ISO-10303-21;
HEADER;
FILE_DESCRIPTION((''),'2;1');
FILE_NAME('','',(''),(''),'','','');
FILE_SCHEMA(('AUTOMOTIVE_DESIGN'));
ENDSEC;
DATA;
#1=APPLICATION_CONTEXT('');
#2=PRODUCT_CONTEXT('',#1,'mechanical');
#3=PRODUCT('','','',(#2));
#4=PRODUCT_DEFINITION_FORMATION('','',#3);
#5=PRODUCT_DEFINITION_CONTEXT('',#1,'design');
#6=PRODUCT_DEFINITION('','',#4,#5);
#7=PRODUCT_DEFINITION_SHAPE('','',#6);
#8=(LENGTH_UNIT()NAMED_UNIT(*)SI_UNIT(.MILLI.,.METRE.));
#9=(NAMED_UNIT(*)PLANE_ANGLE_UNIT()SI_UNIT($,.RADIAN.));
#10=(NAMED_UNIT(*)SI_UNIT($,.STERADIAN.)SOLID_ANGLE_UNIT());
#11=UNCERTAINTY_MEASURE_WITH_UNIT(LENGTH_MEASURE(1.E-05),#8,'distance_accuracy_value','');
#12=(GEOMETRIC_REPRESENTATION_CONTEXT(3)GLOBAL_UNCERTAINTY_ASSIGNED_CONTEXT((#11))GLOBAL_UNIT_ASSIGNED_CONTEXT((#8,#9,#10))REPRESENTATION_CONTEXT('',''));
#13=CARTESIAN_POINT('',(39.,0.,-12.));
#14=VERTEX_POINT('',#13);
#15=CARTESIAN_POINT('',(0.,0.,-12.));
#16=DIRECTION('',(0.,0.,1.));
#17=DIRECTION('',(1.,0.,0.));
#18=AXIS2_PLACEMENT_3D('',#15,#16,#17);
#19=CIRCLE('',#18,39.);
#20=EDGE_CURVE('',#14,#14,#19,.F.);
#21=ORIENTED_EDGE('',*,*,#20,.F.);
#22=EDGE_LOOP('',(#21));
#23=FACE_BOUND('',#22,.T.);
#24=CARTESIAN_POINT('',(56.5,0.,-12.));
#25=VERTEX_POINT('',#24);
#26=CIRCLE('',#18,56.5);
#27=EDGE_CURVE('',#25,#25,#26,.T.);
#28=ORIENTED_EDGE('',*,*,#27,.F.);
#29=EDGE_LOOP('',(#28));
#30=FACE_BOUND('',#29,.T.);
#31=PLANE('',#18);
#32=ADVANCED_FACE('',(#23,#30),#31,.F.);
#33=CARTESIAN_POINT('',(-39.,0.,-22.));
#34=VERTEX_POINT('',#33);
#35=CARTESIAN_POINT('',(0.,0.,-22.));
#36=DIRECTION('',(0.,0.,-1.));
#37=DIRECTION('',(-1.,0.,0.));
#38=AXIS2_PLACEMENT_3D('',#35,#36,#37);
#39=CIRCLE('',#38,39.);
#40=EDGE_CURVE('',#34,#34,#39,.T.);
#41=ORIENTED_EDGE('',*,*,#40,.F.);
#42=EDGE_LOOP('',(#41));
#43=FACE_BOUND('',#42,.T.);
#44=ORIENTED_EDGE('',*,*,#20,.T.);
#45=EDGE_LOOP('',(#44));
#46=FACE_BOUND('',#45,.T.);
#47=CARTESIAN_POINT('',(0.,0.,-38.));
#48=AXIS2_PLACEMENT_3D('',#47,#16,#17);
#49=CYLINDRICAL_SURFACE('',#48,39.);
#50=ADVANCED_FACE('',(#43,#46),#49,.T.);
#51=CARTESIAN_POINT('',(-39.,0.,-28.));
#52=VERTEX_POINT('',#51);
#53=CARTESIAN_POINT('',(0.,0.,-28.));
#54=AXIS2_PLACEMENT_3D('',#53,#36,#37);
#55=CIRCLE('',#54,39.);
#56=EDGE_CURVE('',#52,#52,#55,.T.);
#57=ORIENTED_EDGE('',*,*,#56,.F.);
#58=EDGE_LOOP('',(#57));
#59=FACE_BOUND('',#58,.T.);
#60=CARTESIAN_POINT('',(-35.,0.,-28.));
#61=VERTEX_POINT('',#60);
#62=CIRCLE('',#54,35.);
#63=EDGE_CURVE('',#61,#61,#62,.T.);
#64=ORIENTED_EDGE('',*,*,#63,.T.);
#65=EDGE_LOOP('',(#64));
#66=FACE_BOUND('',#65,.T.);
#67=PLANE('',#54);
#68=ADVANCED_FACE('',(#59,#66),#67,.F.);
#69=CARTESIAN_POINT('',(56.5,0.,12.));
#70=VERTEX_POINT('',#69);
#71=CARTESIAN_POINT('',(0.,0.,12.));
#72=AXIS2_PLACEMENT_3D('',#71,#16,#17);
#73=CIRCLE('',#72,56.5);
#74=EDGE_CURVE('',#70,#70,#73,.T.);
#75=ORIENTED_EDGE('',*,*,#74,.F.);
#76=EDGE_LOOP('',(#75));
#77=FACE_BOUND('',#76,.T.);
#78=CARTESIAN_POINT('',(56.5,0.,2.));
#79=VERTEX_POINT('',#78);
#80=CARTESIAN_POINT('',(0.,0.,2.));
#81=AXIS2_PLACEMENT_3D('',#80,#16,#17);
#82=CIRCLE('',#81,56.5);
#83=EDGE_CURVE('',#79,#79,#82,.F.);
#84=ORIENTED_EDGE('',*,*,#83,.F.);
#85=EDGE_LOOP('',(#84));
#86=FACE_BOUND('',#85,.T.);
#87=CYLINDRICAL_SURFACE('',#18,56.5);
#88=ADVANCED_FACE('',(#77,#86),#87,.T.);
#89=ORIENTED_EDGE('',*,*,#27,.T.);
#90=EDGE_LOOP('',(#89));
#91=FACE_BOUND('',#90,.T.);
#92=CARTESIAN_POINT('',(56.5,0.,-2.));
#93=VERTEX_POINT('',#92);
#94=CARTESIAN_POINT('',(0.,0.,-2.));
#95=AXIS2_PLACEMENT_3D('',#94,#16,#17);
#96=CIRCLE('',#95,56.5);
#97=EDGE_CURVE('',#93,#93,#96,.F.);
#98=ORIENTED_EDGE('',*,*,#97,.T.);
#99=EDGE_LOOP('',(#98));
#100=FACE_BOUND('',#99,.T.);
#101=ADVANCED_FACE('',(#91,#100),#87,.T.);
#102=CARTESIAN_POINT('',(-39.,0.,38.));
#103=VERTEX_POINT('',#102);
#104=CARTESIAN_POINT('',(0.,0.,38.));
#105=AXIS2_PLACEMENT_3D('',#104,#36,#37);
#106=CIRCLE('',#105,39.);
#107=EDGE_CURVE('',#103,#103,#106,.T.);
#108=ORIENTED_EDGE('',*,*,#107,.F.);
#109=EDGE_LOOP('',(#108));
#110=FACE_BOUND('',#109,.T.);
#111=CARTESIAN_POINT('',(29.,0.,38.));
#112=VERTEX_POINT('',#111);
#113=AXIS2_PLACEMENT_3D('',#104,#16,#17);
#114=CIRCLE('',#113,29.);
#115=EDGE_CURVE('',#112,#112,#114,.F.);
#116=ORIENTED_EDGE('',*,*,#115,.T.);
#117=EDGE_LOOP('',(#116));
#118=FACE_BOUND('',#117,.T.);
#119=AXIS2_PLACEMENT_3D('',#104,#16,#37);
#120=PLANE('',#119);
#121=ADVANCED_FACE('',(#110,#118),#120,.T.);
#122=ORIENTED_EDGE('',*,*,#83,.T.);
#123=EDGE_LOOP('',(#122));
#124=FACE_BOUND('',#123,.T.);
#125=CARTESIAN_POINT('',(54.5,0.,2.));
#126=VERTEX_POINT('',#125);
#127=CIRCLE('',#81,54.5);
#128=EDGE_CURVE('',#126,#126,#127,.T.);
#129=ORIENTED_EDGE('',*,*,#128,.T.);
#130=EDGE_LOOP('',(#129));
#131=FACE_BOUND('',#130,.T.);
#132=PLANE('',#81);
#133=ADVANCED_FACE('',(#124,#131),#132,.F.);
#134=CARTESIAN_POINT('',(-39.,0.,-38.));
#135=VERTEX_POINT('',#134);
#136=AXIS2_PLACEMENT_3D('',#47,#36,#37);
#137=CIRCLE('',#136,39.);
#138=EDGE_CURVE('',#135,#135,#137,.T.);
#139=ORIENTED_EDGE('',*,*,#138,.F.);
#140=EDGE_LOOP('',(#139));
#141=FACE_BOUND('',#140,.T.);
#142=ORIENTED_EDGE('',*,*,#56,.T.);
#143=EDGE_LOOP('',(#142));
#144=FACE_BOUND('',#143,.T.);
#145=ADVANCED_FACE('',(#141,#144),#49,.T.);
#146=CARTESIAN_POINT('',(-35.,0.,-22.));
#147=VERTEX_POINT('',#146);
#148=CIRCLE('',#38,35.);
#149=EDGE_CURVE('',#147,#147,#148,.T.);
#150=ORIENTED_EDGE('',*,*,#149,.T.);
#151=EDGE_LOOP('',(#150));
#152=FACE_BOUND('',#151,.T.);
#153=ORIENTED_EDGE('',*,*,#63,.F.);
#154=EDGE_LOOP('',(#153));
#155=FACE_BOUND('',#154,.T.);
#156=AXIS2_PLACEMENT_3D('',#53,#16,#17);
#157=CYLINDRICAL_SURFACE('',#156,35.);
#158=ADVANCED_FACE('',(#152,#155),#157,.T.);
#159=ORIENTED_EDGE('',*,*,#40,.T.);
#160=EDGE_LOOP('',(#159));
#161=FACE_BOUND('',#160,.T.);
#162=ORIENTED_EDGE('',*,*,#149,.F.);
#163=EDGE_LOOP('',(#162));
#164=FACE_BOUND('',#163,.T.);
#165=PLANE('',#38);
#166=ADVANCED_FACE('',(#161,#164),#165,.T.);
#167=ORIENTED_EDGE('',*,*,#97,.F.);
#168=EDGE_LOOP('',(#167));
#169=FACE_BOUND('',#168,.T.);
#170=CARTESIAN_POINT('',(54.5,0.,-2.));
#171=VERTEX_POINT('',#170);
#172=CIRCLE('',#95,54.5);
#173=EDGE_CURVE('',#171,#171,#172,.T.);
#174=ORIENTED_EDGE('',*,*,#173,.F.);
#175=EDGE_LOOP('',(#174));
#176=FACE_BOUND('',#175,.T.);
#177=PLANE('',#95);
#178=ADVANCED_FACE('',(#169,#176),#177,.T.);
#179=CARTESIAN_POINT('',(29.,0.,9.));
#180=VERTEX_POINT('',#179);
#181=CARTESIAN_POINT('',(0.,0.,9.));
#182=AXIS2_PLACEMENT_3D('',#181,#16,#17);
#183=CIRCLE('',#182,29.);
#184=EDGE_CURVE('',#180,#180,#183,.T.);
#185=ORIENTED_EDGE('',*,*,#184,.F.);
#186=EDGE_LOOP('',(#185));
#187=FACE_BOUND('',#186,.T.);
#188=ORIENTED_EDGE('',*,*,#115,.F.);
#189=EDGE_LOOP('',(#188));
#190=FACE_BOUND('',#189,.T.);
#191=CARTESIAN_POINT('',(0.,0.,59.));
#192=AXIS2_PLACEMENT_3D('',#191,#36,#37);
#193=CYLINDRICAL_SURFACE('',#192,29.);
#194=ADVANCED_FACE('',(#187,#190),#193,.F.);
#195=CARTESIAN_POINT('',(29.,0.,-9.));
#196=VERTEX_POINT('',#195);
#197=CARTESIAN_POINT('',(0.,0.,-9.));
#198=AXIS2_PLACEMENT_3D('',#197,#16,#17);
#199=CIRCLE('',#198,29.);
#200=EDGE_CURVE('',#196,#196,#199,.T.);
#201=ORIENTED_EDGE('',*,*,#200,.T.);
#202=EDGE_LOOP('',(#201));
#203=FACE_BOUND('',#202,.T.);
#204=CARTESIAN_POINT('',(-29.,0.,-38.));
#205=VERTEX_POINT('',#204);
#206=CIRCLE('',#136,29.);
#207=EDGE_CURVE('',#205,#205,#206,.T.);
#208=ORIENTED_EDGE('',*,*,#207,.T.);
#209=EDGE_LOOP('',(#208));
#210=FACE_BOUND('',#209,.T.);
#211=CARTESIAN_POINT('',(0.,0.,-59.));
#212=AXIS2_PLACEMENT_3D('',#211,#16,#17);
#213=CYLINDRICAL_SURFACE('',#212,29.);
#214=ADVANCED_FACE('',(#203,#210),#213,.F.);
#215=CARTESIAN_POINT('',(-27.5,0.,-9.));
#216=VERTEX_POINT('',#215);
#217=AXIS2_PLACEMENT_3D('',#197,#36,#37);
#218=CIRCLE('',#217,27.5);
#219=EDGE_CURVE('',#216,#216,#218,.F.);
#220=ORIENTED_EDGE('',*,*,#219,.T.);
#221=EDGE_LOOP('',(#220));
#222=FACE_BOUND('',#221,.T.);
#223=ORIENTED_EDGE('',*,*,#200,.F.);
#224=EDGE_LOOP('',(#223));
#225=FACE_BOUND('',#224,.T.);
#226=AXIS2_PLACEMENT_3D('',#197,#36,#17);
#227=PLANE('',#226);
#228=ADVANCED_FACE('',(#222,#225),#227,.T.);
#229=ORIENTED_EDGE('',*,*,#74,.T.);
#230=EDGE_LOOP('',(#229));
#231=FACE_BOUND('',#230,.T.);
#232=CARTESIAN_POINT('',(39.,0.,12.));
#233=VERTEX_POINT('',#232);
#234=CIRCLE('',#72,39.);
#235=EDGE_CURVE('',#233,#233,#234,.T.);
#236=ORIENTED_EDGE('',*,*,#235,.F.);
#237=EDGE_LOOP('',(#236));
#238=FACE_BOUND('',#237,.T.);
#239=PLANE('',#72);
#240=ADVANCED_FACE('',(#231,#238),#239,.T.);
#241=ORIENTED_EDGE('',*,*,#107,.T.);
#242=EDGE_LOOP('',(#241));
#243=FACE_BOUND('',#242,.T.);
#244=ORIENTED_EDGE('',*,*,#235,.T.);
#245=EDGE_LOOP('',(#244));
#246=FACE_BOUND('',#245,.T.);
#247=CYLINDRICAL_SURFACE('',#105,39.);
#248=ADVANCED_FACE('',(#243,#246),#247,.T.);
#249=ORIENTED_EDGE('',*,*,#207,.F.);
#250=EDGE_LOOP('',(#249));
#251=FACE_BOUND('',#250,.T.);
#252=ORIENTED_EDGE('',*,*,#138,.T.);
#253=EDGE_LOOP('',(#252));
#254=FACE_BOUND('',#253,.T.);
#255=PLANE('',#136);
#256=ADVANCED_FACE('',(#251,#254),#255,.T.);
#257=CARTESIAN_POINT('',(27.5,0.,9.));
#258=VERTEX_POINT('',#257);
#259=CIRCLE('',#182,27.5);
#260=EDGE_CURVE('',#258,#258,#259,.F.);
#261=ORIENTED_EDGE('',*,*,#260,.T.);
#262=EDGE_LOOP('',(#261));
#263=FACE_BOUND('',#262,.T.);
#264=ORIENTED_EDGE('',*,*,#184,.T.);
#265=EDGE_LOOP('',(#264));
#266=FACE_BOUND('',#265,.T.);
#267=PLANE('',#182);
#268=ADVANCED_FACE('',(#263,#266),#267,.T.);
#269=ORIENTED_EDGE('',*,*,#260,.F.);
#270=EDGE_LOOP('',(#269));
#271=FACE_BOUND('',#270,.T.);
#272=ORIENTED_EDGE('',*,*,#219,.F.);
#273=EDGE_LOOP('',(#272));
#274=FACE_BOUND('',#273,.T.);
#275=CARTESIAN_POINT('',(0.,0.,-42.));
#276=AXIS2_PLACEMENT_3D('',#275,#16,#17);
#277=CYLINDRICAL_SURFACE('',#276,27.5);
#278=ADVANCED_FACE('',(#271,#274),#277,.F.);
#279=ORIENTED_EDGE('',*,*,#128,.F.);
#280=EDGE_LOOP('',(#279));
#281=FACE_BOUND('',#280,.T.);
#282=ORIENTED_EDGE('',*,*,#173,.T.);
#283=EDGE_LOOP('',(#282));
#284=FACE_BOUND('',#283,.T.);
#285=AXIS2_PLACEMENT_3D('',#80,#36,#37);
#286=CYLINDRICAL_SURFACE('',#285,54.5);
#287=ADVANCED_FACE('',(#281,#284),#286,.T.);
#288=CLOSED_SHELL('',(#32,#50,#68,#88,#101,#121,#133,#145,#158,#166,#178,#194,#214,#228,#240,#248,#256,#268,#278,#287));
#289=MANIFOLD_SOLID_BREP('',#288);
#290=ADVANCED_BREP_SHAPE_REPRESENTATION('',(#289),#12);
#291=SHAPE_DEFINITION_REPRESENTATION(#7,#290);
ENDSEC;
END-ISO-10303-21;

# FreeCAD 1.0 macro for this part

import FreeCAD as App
import Part
import Sketcher

doc = App.newDocument("Part")
params = doc.addObject("Spreadsheet::Sheet", "Params")
for row, (alias, value) in enumerate([
    ("sketch1_diameter", "113 mm"),
    ("pad1_length", "12 mm"),
    ("pad1_length2", "12 mm"),
    ("sketch2_diameter", "109 mm"),
    ("pocket1_length", "2 mm"),
    ("pocket1_length2", "2 mm"),
    ("sketch3_diameter", "78 mm"),
    ("pad2_length", "26 mm"),
    ("sketch4_diameter", "70 mm"),
    ("pocket2_length", "3 mm"),
    ("pocket2_length2", "3 mm"),
    ("sketch5_diameter", "55 mm"),
    ("pocket3_length", "80 mm"),
    ("sketch6_diameter", "58 mm"),
    ("pocket4_length", "50 mm"),
], start=1):
    params.set(f"A{row}", alias)
    params.set(f"B{row}", "=" + value)
    params.setAlias(f"B{row}", alias)

body = doc.addObject("PartDesign::Body", "Body")

# Sketch on XY plane
sketch1 = body.newObject("Sketcher::SketchObject", "Sketch")
sketch1.AttachmentSupport = (doc.getObject("XY_Plane"), [""])
sketch1.MapMode = "FlatFace"
sketch1.addGeometry(Part.Circle(App.Vector(0, 0, 0), App.Vector(0, 0, 1), 56), False)
sketch1.addConstraint([
    Sketcher.Constraint("Coincident", 0, 3, -1, 1),
    Sketcher.Constraint("Diameter", 0, 113.0),
])
sketch1.setExpression("Constraints[1]", "Params.sketch1_diameter")
pad1 = body.newObject("PartDesign::Pad", "Pad")
pad1.Profile = sketch1
pad1.Type = "TwoLengths"
pad1.setExpression("Length", "Params.pad1_length")
pad1.setExpression("Length2", "Params.pad1_length2")

# Sketch on XY plane
sketch2 = body.newObject("Sketcher::SketchObject", "Sketch001")
sketch2.AttachmentSupport = (doc.getObject("XY_Plane"), [""])
sketch2.MapMode = "FlatFace"
sketch2.addGeometry([
    Part.Circle(App.Vector(0, 0, 0), App.Vector(0, 0, 1), 75),
    Part.Circle(App.Vector(0, 0, 0), App.Vector(0, 0, 1), 54),
], False)
sketch2.addConstraint([
    Sketcher.Constraint("Coincident", 0, 3, -1, 1),
    Sketcher.Constraint("Coincident", 1, 3, -1, 1),
    Sketcher.Constraint("Diameter", 1, 109.0),
    Sketcher.Constraint("Diameter", 0, 149.799206),
])
sketch2.setExpression("Constraints[2]", "Params.sketch2_diameter")
pocket1 = body.newObject("PartDesign::Pocket", "Pocket")
pocket1.Profile = sketch2
pocket1.Type = "TwoLengths"
pocket1.setExpression("Length", "Params.pocket1_length")
pocket1.setExpression("Length2", "Params.pocket1_length2")
pocket1.Reversed = True

# Sketch on XY plane
sketch3 = body.newObject("Sketcher::SketchObject", "Sketch002")
sketch3.AttachmentSupport = (doc.getObject("XY_Plane"), [""])
sketch3.MapMode = "FlatFace"
sketch3.AttachmentOffset = App.Placement(App.Vector(0, 0, -12), App.Rotation())
sketch3.addGeometry(Part.Circle(App.Vector(0, 0, 0), App.Vector(0, 0, 1), 39), False)
sketch3.addConstraint([
    Sketcher.Constraint("Coincident", 0, 3, -1, 1),
    Sketcher.Constraint("Diameter", 0, 78.0),
])
sketch3.setExpression("Constraints[1]", "Params.sketch3_diameter")
pad2 = body.newObject("PartDesign::Pad", "Pad001")
pad2.Profile = sketch3
pad2.setExpression("Length", "Params.pad2_length")
pad2.Reversed = True
doc.recompute()

mirrored = body.newObject("PartDesign::Mirrored", "Mirrored")
mirrored.Originals = [pad2]
mirrored.MirrorPlane = (doc.getObject("XY_Plane"), [""])
body.Tip = mirrored

# Sketch on XY plane
sketch4 = body.newObject("Sketcher::SketchObject", "Sketch003")
sketch4.AttachmentSupport = (doc.getObject("XY_Plane"), [""])
sketch4.MapMode = "FlatFace"
sketch4.AttachmentOffset = App.Placement(App.Vector(0, 0, -25), App.Rotation())
sketch4.addGeometry([
    Part.Circle(App.Vector(0, 0, 0), App.Vector(0, 0, 1), 52),
    Part.Circle(App.Vector(0, 0, 0), App.Vector(0, 0, 1), 35),
], False)
sketch4.addConstraint([
    Sketcher.Constraint("Coincident", 0, 3, -1, 1),
    Sketcher.Constraint("Coincident", 1, 3, -1, 1),
    Sketcher.Constraint("Diameter", 1, 70.0),
    Sketcher.Constraint("Diameter", 0, 104.966721),
])
sketch4.setExpression("Constraints[2]", "Params.sketch4_diameter")
pocket2 = body.newObject("PartDesign::Pocket", "Pocket001")
pocket2.Profile = sketch4
pocket2.Type = "TwoLengths"
pocket2.setExpression("Length", "Params.pocket2_length")
pocket2.setExpression("Length2", "Params.pocket2_length2")

# Sketch on XY plane
sketch5 = body.newObject("Sketcher::SketchObject", "Sketch004")
sketch5.AttachmentSupport = (doc.getObject("XY_Plane"), [""])
sketch5.MapMode = "FlatFace"
sketch5.AttachmentOffset = App.Placement(App.Vector(0, 0, 38), App.Rotation())
sketch5.addGeometry(Part.Circle(App.Vector(0, 0, 0), App.Vector(0, 0, 1), 28), False)
sketch5.addConstraint([
    Sketcher.Constraint("Coincident", 0, 3, -1, 1),
    Sketcher.Constraint("Diameter", 0, 55.0),
])
sketch5.setExpression("Constraints[1]", "Params.sketch5_diameter")
pocket3 = body.newObject("PartDesign::Pocket", "Pocket002")
pocket3.Profile = sketch5
pocket3.setExpression("Length", "Params.pocket3_length")

# Sketch on XY plane
sketch6 = body.newObject("Sketcher::SketchObject", "Sketch005")
sketch6.AttachmentSupport = (doc.getObject("XY_Plane"), [""])
sketch6.MapMode = "FlatFace"
sketch6.AttachmentOffset = App.Placement(App.Vector(0, 0, 9), App.Rotation())
sketch6.addGeometry(Part.Circle(App.Vector(0, 0, 0), App.Vector(0, 0, 1), 29), False)
sketch6.addConstraint([
    Sketcher.Constraint("Coincident", 0, 3, -1, 1),
    Sketcher.Constraint("Diameter", 0, 58.0),
])
sketch6.setExpression("Constraints[1]", "Params.sketch6_diameter")
pocket4 = body.newObject("PartDesign::Pocket", "Pocket003")
pocket4.Profile = sketch6
pocket4.setExpression("Length", "Params.pocket4_length")
pocket4.Reversed = True
doc.recompute()

mirrored2 = body.newObject("PartDesign::Mirrored", "Mirrored001")
mirrored2.Originals = [pocket4]
mirrored2.MirrorPlane = (doc.getObject("XY_Plane"), [""])
body.Tip = mirrored2

doc.recompute()
